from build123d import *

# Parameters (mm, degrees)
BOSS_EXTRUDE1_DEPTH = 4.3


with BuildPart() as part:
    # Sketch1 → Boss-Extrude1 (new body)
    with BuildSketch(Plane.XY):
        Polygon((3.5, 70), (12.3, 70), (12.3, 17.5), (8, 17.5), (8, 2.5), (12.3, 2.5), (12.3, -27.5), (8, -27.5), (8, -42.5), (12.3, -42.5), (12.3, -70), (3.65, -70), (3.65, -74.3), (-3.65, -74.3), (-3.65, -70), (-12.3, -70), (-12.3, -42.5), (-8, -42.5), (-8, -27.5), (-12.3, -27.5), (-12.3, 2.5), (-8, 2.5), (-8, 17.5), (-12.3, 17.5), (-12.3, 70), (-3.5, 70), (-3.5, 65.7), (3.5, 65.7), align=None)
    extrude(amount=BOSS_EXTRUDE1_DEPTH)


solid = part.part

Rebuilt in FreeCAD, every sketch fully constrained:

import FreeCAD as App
import Part
import Sketcher

doc = App.newDocument("Part")
body = doc.addObject("PartDesign::Body", "Body")

sketch1 = body.newObject("Sketcher::SketchObject", "Sketch")
sketch1.AttachmentSupport = (doc.getObject("XY_Plane"), [""])
sketch1.MapMode = "FlatFace"
sketch1.addGeometry(Part.LineSegment(App.Vector(12.3, 70, 0), App.Vector(3.5, 70, 0)), False)
sketch1.addGeometry(Part.LineSegment(App.Vector(3.5, 70, 0), App.Vector(3.5, 65.7, 0)), False)
sketch1.addGeometry(Part.LineSegment(App.Vector(3.5, 65.7, 0), App.Vector(-3.5, 65.7, 0)), False)
sketch1.addGeometry(Part.LineSegment(App.Vector(-3.5, 65.7, 0), App.Vector(-3.5, 70, 0)), False)
sketch1.addGeometry(Part.LineSegment(App.Vector(-3.5, 70, 0), App.Vector(-12.3, 70, 0)), False)
sketch1.addGeometry(Part.LineSegment(App.Vector(-12.3, 70, 0), App.Vector(-12.3, 17.5, 0)), False)
sketch1.addGeometry(Part.LineSegment(App.Vector(-12.3, 17.5, 0), App.Vector(-8, 17.5, 0)), False)
sketch1.addGeometry(Part.LineSegment(App.Vector(-8, 17.5, 0), App.Vector(-8, 2.5, 0)), False)
sketch1.addGeometry(Part.LineSegment(App.Vector(-8, 2.5, 0), App.Vector(-12.3, 2.5, 0)), False)
sketch1.addGeometry(Part.LineSegment(App.Vector(-12.3, 2.5, 0), App.Vector(-12.3, -27.5, 0)), False)
sketch1.addGeometry(Part.LineSegment(App.Vector(-12.3, -27.5, 0), App.Vector(-8, -27.5, 0)), False)
sketch1.addGeometry(Part.LineSegment(App.Vector(-8, -27.5, 0), App.Vector(-8, -42.5, 0)), False)
sketch1.addGeometry(Part.LineSegment(App.Vector(-8, -42.5, 0), App.Vector(-12.3, -42.5, 0)), False)
sketch1.addGeometry(Part.LineSegment(App.Vector(-12.3, -42.5, 0), App.Vector(-12.3, -70, 0)), False)
sketch1.addGeometry(Part.LineSegment(App.Vector(-12.3, -70, 0), App.Vector(-3.65, -70, 0)), False)
sketch1.addGeometry(Part.LineSegment(App.Vector(-3.65, -70, 0), App.Vector(-3.65, -74.3, 0)), False)
sketch1.addGeometry(Part.LineSegment(App.Vector(-3.65, -74.3, 0), App.Vector(3.65, -74.3, 0)), False)
sketch1.addGeometry(Part.LineSegment(App.Vector(3.65, -74.3, 0), App.Vector(3.65, -70, 0)), False)
sketch1.addGeometry(Part.LineSegment(App.Vector(3.65, -70, 0), App.Vector(12.3, -70, 0)), False)
sketch1.addGeometry(Part.LineSegment(App.Vector(12.3, -70, 0), App.Vector(12.3, -42.5, 0)), False)
sketch1.addGeometry(Part.LineSegment(App.Vector(12.3, -42.5, 0), App.Vector(8, -42.5, 0)), False)
sketch1.addGeometry(Part.LineSegment(App.Vector(8, -42.5, 0), App.Vector(8, -27.5, 0)), False)
sketch1.addGeometry(Part.LineSegment(App.Vector(8, -27.5, 0), App.Vector(12.3, -27.5, 0)), False)
sketch1.addGeometry(Part.LineSegment(App.Vector(12.3, -27.5, 0), App.Vector(12.3, 2.5, 0)), False)
sketch1.addGeometry(Part.LineSegment(App.Vector(12.3, 2.5, 0), App.Vector(8, 2.5, 0)), False)
sketch1.addGeometry(Part.LineSegment(App.Vector(8, 2.5, 0), App.Vector(8, 17.5, 0)), False)
sketch1.addGeometry(Part.LineSegment(App.Vector(8, 17.5, 0), App.Vector(12.3, 17.5, 0)), False)
sketch1.addGeometry(Part.LineSegment(App.Vector(12.3, 17.5, 0), App.Vector(12.3, 70, 0)), False)
sketch1.addConstraint(Sketcher.Constraint("Coincident", 0, 2, 1, 1))
sketch1.addConstraint(Sketcher.Constraint("Coincident", 1, 2, 2, 1))
sketch1.addConstraint(Sketcher.Constraint("Coincident", 2, 2, 3, 1))
sketch1.addConstraint(Sketcher.Constraint("Coincident", 3, 2, 4, 1))
sketch1.addConstraint(Sketcher.Constraint("Coincident", 4, 2, 5, 1))
sketch1.addConstraint(Sketcher.Constraint("Coincident", 5, 2, 6, 1))
sketch1.addConstraint(Sketcher.Constraint("Coincident", 6, 2, 7, 1))
sketch1.addConstraint(Sketcher.Constraint("Coincident", 7, 2, 8, 1))
sketch1.addConstraint(Sketcher.Constraint("Coincident", 8, 2, 9, 1))
sketch1.addConstraint(Sketcher.Constraint("Coincident", 9, 2, 10, 1))
sketch1.addConstraint(Sketcher.Constraint("Coincident", 10, 2, 11, 1))
sketch1.addConstraint(Sketcher.Constraint("Coincident", 11, 2, 12, 1))
sketch1.addConstraint(Sketcher.Constraint("Coincident", 12, 2, 13, 1))
sketch1.addConstraint(Sketcher.Constraint("Coincident", 13, 2, 14, 1))
sketch1.addConstraint(Sketcher.Constraint("Coincident", 14, 2, 15, 1))
sketch1.addConstraint(Sketcher.Constraint("Coincident", 15, 2, 16, 1))
sketch1.addConstraint(Sketcher.Constraint("Coincident", 16, 2, 17, 1))
sketch1.addConstraint(Sketcher.Constraint("Coincident", 17, 2, 18, 1))
sketch1.addConstraint(Sketcher.Constraint("Coincident", 18, 2, 19, 1))
sketch1.addConstraint(Sketcher.Constraint("Coincident", 19, 2, 20, 1))
sketch1.addConstraint(Sketcher.Constraint("Coincident", 20, 2, 21, 1))
sketch1.addConstraint(Sketcher.Constraint("Coincident", 21, 2, 22, 1))
sketch1.addConstraint(Sketcher.Constraint("Coincident", 22, 2, 23, 1))
sketch1.addConstraint(Sketcher.Constraint("Coincident", 23, 2, 24, 1))
sketch1.addConstraint(Sketcher.Constraint("Coincident", 24, 2, 25, 1))
sketch1.addConstraint(Sketcher.Constraint("Coincident", 25, 2, 26, 1))
sketch1.addConstraint(Sketcher.Constraint("Coincident", 26, 2, 27, 1))
sketch1.addConstraint(Sketcher.Constraint("Coincident", 27, 2, 0, 1))
sketch1.addConstraint(Sketcher.Constraint("Horizontal", 0))
sketch1.addConstraint(Sketcher.Constraint("Vertical", 1))
sketch1.addConstraint(Sketcher.Constraint("Horizontal", 2))
sketch1.addConstraint(Sketcher.Constraint("Vertical", 3))
sketch1.addConstraint(Sketcher.Constraint("Horizontal", 4))
sketch1.addConstraint(Sketcher.Constraint("Vertical", 5))
sketch1.addConstraint(Sketcher.Constraint("Horizontal", 6))
sketch1.addConstraint(Sketcher.Constraint("Vertical", 7))
sketch1.addConstraint(Sketcher.Constraint("Horizontal", 8))
sketch1.addConstraint(Sketcher.Constraint("Vertical", 9))
sketch1.addConstraint(Sketcher.Constraint("Horizontal", 10))
sketch1.addConstraint(Sketcher.Constraint("Vertical", 11))
sketch1.addConstraint(Sketcher.Constraint("Horizontal", 12))
sketch1.addConstraint(Sketcher.Constraint("Vertical", 13))
sketch1.addConstraint(Sketcher.Constraint("Horizontal", 14))
sketch1.addConstraint(Sketcher.Constraint("Vertical", 15))
sketch1.addConstraint(Sketcher.Constraint("Horizontal", 16))
sketch1.addConstraint(Sketcher.Constraint("Vertical", 17))
sketch1.addConstraint(Sketcher.Constraint("Horizontal", 18))
sketch1.addConstraint(Sketcher.Constraint("Vertical", 19))
sketch1.addConstraint(Sketcher.Constraint("Horizontal", 20))
sketch1.addConstraint(Sketcher.Constraint("Vertical", 21))
sketch1.addConstraint(Sketcher.Constraint("Horizontal", 22))
sketch1.addConstraint(Sketcher.Constraint("Vertical", 23))
sketch1.addConstraint(Sketcher.Constraint("Horizontal", 24))
sketch1.addConstraint(Sketcher.Constraint("Vertical", 25))
sketch1.addConstraint(Sketcher.Constraint("Horizontal", 26))
sketch1.addConstraint(Sketcher.Constraint("Vertical", 27))
sketch1.addConstraint(Sketcher.Constraint("Symmetric", 4, 2, 18, 2, -1, 1))
sketch1.addConstraint(Sketcher.Constraint("Symmetric", 13, 2, 27, 2, -1, 1))
sketch1.addConstraint(Sketcher.Constraint("Symmetric", 0, 2, 3, 2, -2))
sketch1.addConstraint(Sketcher.Constraint("Symmetric", 12, 2, 19, 2, -2))
sketch1.addConstraint(Sketcher.Constraint("Symmetric", 10, 2, 21, 2, -2))
sketch1.addConstraint(Sketcher.Constraint("Symmetric", 8, 2, 23, 2, -2))
sketch1.addConstraint(Sketcher.Constraint("Symmetric", 6, 2, 25, 2, -2))
sketch1.addConstraint(Sketcher.Constraint("Vertical", 5, 2, 8, 2))
sketch1.addConstraint(Sketcher.Constraint("Vertical", 7, 2, 10, 2))
sketch1.addConstraint(Sketcher.Constraint("Equal", 14, 18))
sketch1.addConstraint(Sketcher.Constraint("Equal", 26, 1))
sketch1.addConstraint(Sketcher.Constraint("Equal", 7, 11))
sketch1.addConstraint(Sketcher.Constraint("Equal", 3, 15))
sketch1.addConstraint(Sketcher.Constraint("DistanceX", 2, 2, 2, 1, 7.0))
sketch1.addConstraint(Sketcher.Constraint("DistanceY", 7, 2, 7, 1, 15.0))
sketch1.addConstraint(Sketcher.Constraint("DistanceY", 9, 2, 9, 1, 30.0))
sketch1.addConstraint(Sketcher.Constraint("DistanceX", 0, 2, 0, 1, 8.8))
sketch1.addConstraint(Sketcher.Constraint("DistanceX", 6, 1, 6, 2, 4.3))
sketch1.addConstraint(Sketcher.Constraint("DistanceX", 16, 1, 16, 2, 7.3))
sketch1.addConstraint(Sketcher.Constraint("DistanceY", 5, 2, 5, 1, 52.5))
sketch1.addConstraint(Sketcher.Constraint("DistanceY", 13, 2, 13, 1, 27.5))
pad1 = body.newObject("PartDesign::Pad", "Pad")
pad1.Profile = sketch1
pad1.Length = 4.3

doc.recompute()
